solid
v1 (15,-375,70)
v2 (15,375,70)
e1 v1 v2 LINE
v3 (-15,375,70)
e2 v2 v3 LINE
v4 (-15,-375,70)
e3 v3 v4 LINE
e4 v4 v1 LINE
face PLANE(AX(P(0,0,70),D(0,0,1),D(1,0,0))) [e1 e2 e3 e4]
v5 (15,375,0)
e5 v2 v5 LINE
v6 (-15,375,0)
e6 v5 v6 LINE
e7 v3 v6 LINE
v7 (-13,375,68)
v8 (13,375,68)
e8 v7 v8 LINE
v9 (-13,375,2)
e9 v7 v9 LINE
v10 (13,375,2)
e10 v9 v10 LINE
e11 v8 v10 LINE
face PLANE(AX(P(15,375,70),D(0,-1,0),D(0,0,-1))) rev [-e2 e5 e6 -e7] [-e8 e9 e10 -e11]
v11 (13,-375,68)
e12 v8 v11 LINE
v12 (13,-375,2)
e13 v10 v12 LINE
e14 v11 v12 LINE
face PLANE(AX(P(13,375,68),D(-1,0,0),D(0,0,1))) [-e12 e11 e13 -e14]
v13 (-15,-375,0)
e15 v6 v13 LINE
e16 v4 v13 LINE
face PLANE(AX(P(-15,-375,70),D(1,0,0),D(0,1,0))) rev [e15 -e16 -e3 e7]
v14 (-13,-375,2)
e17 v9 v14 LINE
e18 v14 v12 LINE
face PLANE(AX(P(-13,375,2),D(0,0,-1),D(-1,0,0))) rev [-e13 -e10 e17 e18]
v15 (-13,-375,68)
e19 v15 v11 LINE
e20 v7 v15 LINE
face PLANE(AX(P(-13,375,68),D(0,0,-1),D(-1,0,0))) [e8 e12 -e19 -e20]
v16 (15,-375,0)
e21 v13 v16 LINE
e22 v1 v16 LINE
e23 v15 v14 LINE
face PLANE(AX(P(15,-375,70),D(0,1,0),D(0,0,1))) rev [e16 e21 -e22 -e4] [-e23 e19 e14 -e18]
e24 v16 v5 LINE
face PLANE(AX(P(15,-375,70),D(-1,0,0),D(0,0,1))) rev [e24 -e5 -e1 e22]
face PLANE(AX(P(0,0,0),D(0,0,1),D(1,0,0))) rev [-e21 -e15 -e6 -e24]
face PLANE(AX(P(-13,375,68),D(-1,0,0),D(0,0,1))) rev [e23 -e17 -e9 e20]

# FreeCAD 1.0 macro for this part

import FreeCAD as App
import Part
import Sketcher
from FreeCAD import Vector


def add_polygon(sketch, points):
    """Adds a closed chain of lines whose ends are joined by coincident constraints."""
    first, n = sketch.GeometryCount, len(points)
    for a, b in zip(points, points[1:] + points[:1]):
        sketch.addGeometry(Part.LineSegment(App.Vector(*a, 0), App.Vector(*b, 0)), False)
    for i in range(n):
        sketch.addConstraint(Sketcher.Constraint("Coincident", first + i, 2, first + (i + 1) % n, 1))

doc = App.newDocument("Part")
body = doc.addObject("PartDesign::Body", "Body")

# Sketch on XY plane
sketch1 = body.newObject("Sketcher::SketchObject", "Sketch")
sketch1.AttachmentSupport = (doc.getObject("XY_Plane"), [""])
sketch1.MapMode = "FlatFace"
add_polygon(sketch1, [(-15, 375), (-15, -375), (15, -375), (15, 375)])  # lines 0-3
sketch1.addConstraint([
    Sketcher.Constraint("Vertical", 0),
    Sketcher.Constraint("Horizontal", 1),
    Sketcher.Constraint("Vertical", 2),
    Sketcher.Constraint("Horizontal", 3),
    Sketcher.Constraint("Symmetric", 0, 2, 2, 2, -1, 1),
    Sketcher.Constraint("DistanceX", 1, 1, 1, 2, 30.0),
    Sketcher.Constraint("DistanceY", 0, 2, 0, 1, 750.0),
])
pad1 = body.newObject("PartDesign::Pad", "Pad")
pad1.Profile = sketch1
pad1.Length = 70

# Sketch on XZ plane
sketch2 = body.newObject("Sketcher::SketchObject", "Sketch001")
sketch2.AttachmentSupport = (doc.getObject("XZ_Plane"), [""])
sketch2.MapMode = "FlatFace"
sketch2.AttachmentOffset = App.Placement(Vector(0, 0, 375), App.Rotation())
add_polygon(sketch2, [(-13, 68), (-13, 2), (13, 2), (13, 68)])  # lines 0-3
sketch2.addConstraint([
    Sketcher.Constraint("Vertical", 0),
    Sketcher.Constraint("Horizontal", 1),
    Sketcher.Constraint("Vertical", 2),
    Sketcher.Constraint("Horizontal", 3),
    Sketcher.Constraint("DistanceX", 1, 1, 1, 2, 26.0),
    Sketcher.Constraint("DistanceY", 0, 2, 0, 1, 66.0),
    Sketcher.Constraint("DistanceX", 0, 2, -1, 1, 13.0),
    Sketcher.Constraint("DistanceY", -1, 1, 0, 2, 2.0),
])
pocket1 = body.newObject("PartDesign::Pocket", "Pocket")
pocket1.Profile = sketch2
pocket1.Type = "ThroughAll"

doc.recompute()
